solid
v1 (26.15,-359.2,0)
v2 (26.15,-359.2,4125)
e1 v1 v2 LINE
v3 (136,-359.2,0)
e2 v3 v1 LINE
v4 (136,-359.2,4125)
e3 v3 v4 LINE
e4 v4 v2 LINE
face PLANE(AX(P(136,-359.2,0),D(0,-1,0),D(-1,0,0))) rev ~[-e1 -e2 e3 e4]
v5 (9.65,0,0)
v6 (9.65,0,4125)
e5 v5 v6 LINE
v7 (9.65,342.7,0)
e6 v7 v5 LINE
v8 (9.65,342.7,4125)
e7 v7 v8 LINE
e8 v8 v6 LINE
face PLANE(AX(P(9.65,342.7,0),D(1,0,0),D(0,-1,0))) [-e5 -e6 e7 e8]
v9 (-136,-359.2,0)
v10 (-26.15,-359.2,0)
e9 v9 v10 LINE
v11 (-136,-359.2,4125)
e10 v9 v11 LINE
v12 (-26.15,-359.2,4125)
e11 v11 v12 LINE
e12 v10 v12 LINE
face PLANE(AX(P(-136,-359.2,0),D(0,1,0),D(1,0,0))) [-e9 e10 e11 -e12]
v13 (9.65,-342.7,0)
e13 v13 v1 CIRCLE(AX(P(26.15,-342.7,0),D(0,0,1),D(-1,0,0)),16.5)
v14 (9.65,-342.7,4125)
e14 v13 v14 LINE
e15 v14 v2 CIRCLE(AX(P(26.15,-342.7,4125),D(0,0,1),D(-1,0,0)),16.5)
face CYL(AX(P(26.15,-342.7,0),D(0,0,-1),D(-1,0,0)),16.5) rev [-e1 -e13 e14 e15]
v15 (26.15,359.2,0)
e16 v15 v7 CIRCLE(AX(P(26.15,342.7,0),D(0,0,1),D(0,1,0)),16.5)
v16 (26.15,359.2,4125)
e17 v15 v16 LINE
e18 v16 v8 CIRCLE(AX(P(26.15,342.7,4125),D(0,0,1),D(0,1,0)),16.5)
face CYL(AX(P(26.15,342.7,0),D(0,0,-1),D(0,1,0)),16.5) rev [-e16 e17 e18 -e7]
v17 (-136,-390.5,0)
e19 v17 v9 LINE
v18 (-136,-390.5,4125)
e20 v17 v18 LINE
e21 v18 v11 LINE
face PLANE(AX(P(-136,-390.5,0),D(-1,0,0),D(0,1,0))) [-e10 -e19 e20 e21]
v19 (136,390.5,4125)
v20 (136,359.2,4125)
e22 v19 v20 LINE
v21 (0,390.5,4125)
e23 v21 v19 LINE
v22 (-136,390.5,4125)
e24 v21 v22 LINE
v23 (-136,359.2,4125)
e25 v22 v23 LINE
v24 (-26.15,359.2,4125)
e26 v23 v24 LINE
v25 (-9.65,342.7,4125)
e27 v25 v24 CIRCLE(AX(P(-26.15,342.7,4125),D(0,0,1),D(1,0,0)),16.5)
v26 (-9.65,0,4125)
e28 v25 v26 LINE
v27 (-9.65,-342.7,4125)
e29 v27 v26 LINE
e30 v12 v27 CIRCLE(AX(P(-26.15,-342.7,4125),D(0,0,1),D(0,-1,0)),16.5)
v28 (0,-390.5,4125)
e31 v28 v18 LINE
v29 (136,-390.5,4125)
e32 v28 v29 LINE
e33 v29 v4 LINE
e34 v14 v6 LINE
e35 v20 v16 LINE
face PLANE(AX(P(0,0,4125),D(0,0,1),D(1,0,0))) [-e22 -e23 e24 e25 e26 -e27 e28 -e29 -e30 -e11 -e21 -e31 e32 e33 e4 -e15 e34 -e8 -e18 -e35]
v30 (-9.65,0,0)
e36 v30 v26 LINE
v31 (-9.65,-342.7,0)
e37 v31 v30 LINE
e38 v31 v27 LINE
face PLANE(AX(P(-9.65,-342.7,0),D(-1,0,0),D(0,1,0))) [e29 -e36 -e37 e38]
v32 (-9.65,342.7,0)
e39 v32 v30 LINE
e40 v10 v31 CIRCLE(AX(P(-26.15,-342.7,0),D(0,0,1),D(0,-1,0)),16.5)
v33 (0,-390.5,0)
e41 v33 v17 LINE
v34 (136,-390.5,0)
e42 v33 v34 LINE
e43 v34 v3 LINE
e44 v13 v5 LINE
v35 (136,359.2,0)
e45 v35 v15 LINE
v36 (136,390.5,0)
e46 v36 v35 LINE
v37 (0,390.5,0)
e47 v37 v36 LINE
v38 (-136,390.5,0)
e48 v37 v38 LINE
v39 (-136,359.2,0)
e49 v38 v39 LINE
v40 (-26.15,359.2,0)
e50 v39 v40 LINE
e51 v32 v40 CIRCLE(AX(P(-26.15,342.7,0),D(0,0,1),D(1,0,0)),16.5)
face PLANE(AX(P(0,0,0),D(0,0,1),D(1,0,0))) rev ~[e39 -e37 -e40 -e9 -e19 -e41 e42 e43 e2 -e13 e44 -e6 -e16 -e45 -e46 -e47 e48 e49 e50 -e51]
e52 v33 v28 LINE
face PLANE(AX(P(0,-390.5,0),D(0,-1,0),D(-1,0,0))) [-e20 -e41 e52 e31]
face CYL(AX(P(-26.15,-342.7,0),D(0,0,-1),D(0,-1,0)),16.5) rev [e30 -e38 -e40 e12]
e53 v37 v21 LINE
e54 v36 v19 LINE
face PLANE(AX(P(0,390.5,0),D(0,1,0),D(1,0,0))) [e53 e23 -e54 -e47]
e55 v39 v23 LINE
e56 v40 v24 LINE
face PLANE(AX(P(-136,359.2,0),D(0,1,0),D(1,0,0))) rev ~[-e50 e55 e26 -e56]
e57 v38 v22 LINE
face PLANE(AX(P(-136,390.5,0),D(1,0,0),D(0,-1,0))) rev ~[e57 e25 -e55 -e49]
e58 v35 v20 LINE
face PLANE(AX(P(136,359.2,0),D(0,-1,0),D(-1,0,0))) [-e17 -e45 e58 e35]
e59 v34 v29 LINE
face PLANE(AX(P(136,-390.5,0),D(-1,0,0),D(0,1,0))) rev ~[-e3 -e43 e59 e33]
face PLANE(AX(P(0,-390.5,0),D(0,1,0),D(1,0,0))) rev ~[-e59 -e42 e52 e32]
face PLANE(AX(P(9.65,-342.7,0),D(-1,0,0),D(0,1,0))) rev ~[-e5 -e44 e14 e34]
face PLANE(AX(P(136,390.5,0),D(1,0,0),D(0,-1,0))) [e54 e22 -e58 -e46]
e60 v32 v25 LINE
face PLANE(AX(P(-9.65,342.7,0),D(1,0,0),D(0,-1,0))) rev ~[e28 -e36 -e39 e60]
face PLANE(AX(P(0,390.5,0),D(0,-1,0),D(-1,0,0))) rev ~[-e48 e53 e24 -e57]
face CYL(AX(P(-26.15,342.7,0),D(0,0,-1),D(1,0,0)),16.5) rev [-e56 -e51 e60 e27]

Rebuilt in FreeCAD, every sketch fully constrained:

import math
import FreeCAD as App
import Part
import Sketcher
from FreeCAD import Vector
Q = App.Units.Quantity

doc = App.newDocument("Part")
body = doc.addObject("PartDesign::Body", "Body")

sketch1 = body.newObject("Sketcher::SketchObject", "Sketch")
sketch1.AttachmentSupport = (doc.getObject("XY_Plane"), [""])
sketch1.MapMode = "FlatFace"
sketch1.addGeometry([
    Part.LineSegment(Vector(-136, -359.2, 0), Vector(-136, -390.5, 0)),
    Part.LineSegment(Vector(-136, -390.5, 0), Vector(136, -390.5, 0)),
    Part.LineSegment(Vector(136, -390.5, 0), Vector(136, -359.2, 0)),
    Part.LineSegment(Vector(136, -359.2, 0), Vector(26.15, -359.2, 0)),
    Part.ArcOfCircle(Part.Circle(Vector(26.15, -342.7, 0), Vector(0, 0, 1), 16.5), math.radians(180), math.radians(270)),
    Part.LineSegment(Vector(9.65, -342.7, 0), Vector(9.65, 342.7, 0)),
    Part.ArcOfCircle(Part.Circle(Vector(26.15, 342.7, 0), Vector(0, 0, 1), 16.5), math.radians(90), math.radians(180)),
    Part.LineSegment(Vector(26.15, 359.2, 0), Vector(136, 359.2, 0)),
    Part.LineSegment(Vector(136, 359.2, 0), Vector(136, 390.5, 0)),
    Part.LineSegment(Vector(136, 390.5, 0), Vector(-136, 390.5, 0)),
    Part.LineSegment(Vector(-136, 390.5, 0), Vector(-136, 359.2, 0)),
    Part.LineSegment(Vector(-136, 359.2, 0), Vector(-26.15, 359.2, 0)),
    Part.ArcOfCircle(Part.Circle(Vector(-26.15, 342.7, 0), Vector(0, 0, 1), 16.5), math.radians(0), math.radians(90)),
    Part.LineSegment(Vector(-9.65, 342.7, 0), Vector(-9.65, -342.7, 0)),
    Part.ArcOfCircle(Part.Circle(Vector(-26.15, -342.7, 0), Vector(0, 0, 1), 16.5), math.radians(-90), math.radians(0)),
    Part.LineSegment(Vector(-26.15, -359.2, 0), Vector(-136, -359.2, 0)),
], False)
sketch1.addConstraint([
    Sketcher.Constraint("Coincident", 0, 2, 1, 1),
    Sketcher.Constraint("Coincident", 1, 2, 2, 1),
    Sketcher.Constraint("Coincident", 2, 2, 3, 1),
    Sketcher.Constraint("Tangent", 3, 2, 4, 2),
    Sketcher.Constraint("Tangent", 4, 1, 5, 1),
    Sketcher.Constraint("Tangent", 5, 2, 6, 2),
    Sketcher.Constraint("Tangent", 6, 1, 7, 1),
    Sketcher.Constraint("Coincident", 7, 2, 8, 1),
    Sketcher.Constraint("Coincident", 8, 2, 9, 1),
    Sketcher.Constraint("Coincident", 9, 2, 10, 1),
    Sketcher.Constraint("Coincident", 10, 2, 11, 1),
    Sketcher.Constraint("Tangent", 11, 2, 12, 2),
    Sketcher.Constraint("Tangent", 12, 1, 13, 1),
    Sketcher.Constraint("Tangent", 13, 2, 14, 2),
    Sketcher.Constraint("Tangent", 14, 1, 15, 1),
    Sketcher.Constraint("Coincident", 15, 2, 0, 1),
    Sketcher.Constraint("Vertical", 0),
    Sketcher.Constraint("Horizontal", 1),
    Sketcher.Constraint("Vertical", 2),
    Sketcher.Constraint("Horizontal", 3),
    Sketcher.Constraint("Vertical", 5),
    Sketcher.Constraint("Horizontal", 7),
    Sketcher.Constraint("Vertical", 8),
    Sketcher.Constraint("Horizontal", 9),
    Sketcher.Constraint("Vertical", 10),
    Sketcher.Constraint("Horizontal", 11),
    Sketcher.Constraint("Vertical", 13),
    Sketcher.Constraint("Horizontal", 15),
    Sketcher.Constraint("Equal", 4, 6),
    Sketcher.Constraint("Equal", 6, 12),
    Sketcher.Constraint("Equal", 12, 14),
    Sketcher.Constraint("Symmetric", 4, 3, 12, 3, -1, 1),
    Sketcher.Constraint("Symmetric", 0, 2, 8, 2, -1, 1),
    Sketcher.Constraint("Symmetric", 7, 2, 10, 2, -2),
    Sketcher.Constraint("Symmetric", 2, 2, 15, 2, -2),
    Sketcher.Constraint("Radius", 4, Q("16.5 mm")),
    Sketcher.Constraint("DistanceY", 0, 2, 0, 1, Q("31.3 mm")),
    Sketcher.Constraint("DistanceX", 0, 2, -1, 1, Q("136 mm")),
    Sketcher.Constraint("DistanceY", 0, 2, -1, 1, Q("390.5 mm")),
    Sketcher.Constraint("DistanceX", -1, 1, 4, 1, Q("9.65 mm")),
])
pad1 = body.newObject("PartDesign::Pad", "Pad")
pad1.Profile = sketch1
pad1.Length = 4125

doc.recompute()
